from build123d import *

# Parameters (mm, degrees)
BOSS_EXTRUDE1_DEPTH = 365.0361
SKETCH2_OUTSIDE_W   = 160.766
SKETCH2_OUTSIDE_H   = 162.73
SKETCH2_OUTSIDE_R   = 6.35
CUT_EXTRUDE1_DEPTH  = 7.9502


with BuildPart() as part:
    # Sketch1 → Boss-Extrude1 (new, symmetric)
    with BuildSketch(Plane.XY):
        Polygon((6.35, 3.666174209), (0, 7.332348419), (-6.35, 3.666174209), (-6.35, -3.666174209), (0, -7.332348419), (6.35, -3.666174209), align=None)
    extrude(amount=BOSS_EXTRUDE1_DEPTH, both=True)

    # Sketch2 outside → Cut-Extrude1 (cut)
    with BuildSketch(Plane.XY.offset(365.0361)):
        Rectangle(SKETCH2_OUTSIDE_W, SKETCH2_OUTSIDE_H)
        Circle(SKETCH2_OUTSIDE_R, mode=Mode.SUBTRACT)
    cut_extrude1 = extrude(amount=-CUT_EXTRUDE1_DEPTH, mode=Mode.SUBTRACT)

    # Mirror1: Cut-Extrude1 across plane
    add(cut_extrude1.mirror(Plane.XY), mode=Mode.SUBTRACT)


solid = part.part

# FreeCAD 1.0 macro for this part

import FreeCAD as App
import Part
import Sketcher
from FreeCAD import Vector
Q = App.Units.Quantity

doc = App.newDocument("Part")
body = doc.addObject("PartDesign::Body", "Body")

sketch1 = body.newObject("Sketcher::SketchObject", "Sketch")
sketch1.AttachmentSupport = (doc.getObject("XY_Plane"), [""])
sketch1.MapMode = "FlatFace"
sketch1.addGeometry([
    Part.LineSegment(Vector(6, 4, 0), Vector(0, 7, 0)),
    Part.LineSegment(Vector(0, 7, 0), Vector(-6, 4, 0)),
    Part.LineSegment(Vector(-6, 4, 0), Vector(-6, -4, 0)),
    Part.LineSegment(Vector(-6, -4, 0), Vector(0, -7, 0)),
    Part.LineSegment(Vector(0, -7, 0), Vector(6, -4, 0)),
    Part.LineSegment(Vector(6, -4, 0), Vector(6, 4, 0)),
], False)
sketch1.addConstraint([
    Sketcher.Constraint("Coincident", 0, 2, 1, 1),
    Sketcher.Constraint("Coincident", 1, 2, 2, 1),
    Sketcher.Constraint("Coincident", 2, 2, 3, 1),
    Sketcher.Constraint("Coincident", 3, 2, 4, 1),
    Sketcher.Constraint("Coincident", 4, 2, 5, 1),
    Sketcher.Constraint("Coincident", 5, 2, 0, 1),
    Sketcher.Constraint("Vertical", 2),
    Sketcher.Constraint("Vertical", 5),
    Sketcher.Constraint("Symmetric", 0, 2, 3, 2, -1, 1),
    Sketcher.Constraint("Symmetric", 1, 2, 4, 2, -1, 1),
    Sketcher.Constraint("PointOnObject", 0, 2, -2),
    Sketcher.Constraint("Parallel", 0, 3),
    Sketcher.Constraint("Horizontal", 2, 2, 4, 2),
    Sketcher.Constraint("Angle", 0, Q("150 deg")),
    Sketcher.Constraint("DistanceX", 2, 2, 4, 2, Q("0.5 in")),
    Sketcher.Constraint("DistanceY", 2, 2, 2, 1, 7.332348),
])
pad1 = body.newObject("PartDesign::Pad", "Pad")
pad1.Profile = sketch1
pad1.Length = Q("28.743 in")
pad1.Midplane = True

sketch2 = body.newObject("Sketcher::SketchObject", "Sketch001")
sketch2.AttachmentSupport = (doc.getObject("XY_Plane"), [""])
sketch2.MapMode = "FlatFace"
sketch2.AttachmentOffset = App.Placement(Vector(0, 0, 14.3715 * 25.4), App.Rotation())
sketch2.addGeometry([
    Part.LineSegment(Vector(-80, 81, 0), Vector(-80, -81, 0)),
    Part.LineSegment(Vector(-80, -81, 0), Vector(80, -81, 0)),
    Part.LineSegment(Vector(80, -81, 0), Vector(80, 81, 0)),
    Part.LineSegment(Vector(80, 81, 0), Vector(-80, 81, 0)),
    Part.Circle(Vector(0, 0, 0), Vector(0, 0, 1), 6),
], False)
sketch2.addConstraint([
    Sketcher.Constraint("Coincident", 0, 2, 1, 1),
    Sketcher.Constraint("Coincident", 1, 2, 2, 1),
    Sketcher.Constraint("Coincident", 2, 2, 3, 1),
    Sketcher.Constraint("Coincident", 3, 2, 0, 1),
    Sketcher.Constraint("Vertical", 0),
    Sketcher.Constraint("Horizontal", 1),
    Sketcher.Constraint("Vertical", 2),
    Sketcher.Constraint("Horizontal", 3),
    Sketcher.Constraint("Coincident", 4, 3, -1, 1),
    Sketcher.Constraint("Symmetric", 0, 2, 2, 2, -1, 1),
    Sketcher.Constraint("Diameter", 4, Q("0.5 in")),
    Sketcher.Constraint("DistanceX", 1, 1, 1, 2, 160.766),
    Sketcher.Constraint("DistanceY", 0, 2, 0, 1, 162.73),
])
pocket1 = body.newObject("PartDesign::Pocket", "Pocket")
pocket1.Profile = sketch2
pocket1.Length = Q("0.313 in")
doc.recompute()

mirrored = body.newObject("PartDesign::Mirrored", "Mirrored")
mirrored.Originals = [pocket1]
mirrored.MirrorPlane = (doc.getObject("XY_Plane"), [""])
body.Tip = mirrored

doc.recompute()
